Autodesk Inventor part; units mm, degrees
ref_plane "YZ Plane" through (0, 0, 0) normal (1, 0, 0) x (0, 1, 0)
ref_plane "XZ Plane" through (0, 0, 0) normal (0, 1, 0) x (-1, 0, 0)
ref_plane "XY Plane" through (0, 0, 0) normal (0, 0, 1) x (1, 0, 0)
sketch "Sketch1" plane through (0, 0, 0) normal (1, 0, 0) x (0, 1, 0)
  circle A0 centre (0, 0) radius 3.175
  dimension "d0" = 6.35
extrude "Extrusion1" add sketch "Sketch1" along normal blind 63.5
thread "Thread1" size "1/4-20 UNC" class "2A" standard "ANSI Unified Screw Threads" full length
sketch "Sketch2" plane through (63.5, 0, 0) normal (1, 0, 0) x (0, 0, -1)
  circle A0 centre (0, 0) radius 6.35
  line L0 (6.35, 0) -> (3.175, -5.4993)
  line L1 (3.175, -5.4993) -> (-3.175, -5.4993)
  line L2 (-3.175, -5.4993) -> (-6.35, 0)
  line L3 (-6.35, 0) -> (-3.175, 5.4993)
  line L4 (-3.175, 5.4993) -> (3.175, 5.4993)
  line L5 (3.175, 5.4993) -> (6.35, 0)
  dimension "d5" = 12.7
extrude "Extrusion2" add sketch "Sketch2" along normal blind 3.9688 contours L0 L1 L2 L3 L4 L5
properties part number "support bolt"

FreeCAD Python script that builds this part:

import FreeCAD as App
import Part
import Sketcher

V = App.Vector
Q = App.Units.Quantity


def add_polygon(sketch, points):
    """Adds a closed chain of lines whose ends are joined by coincident constraints."""
    first, n = sketch.GeometryCount, len(points)
    for a, b in zip(points, points[1:] + points[:1]):
        sketch.addGeometry(Part.LineSegment(App.Vector(*a, 0), App.Vector(*b, 0)), False)
    for i in range(n):
        sketch.addConstraint(Sketcher.Constraint("Coincident", first + i, 2, first + (i + 1) % n, 1))

doc = App.newDocument("Part")
body = doc.addObject("PartDesign::Body", "Body")

# Sketch on YZ plane
sketch1 = body.newObject("Sketcher::SketchObject", "Sketch")
sketch1.AttachmentSupport = (doc.getObject("YZ_Plane"), [""])
sketch1.MapMode = "FlatFace"
sketch1.addGeometry(Part.Circle(V(0, 0, 0), V(0, 0, 1), 3.2), False)
sketch1.addConstraint([
    Sketcher.Constraint("Coincident", 0, 3, -1, 1),
    Sketcher.Constraint("Diameter", 0, Q("0.25 in")),
])
pad1 = body.newObject("PartDesign::Pad", "Pad")
pad1.Profile = sketch1
pad1.Length = Q("2.5 in")

# Sketch on YZ plane
sketch2 = body.newObject("Sketcher::SketchObject", "Sketch001")
sketch2.AttachmentSupport = (doc.getObject("YZ_Plane"), [""])
sketch2.MapMode = "FlatFace"
sketch2.AttachmentOffset = App.Placement(V(0, 0, 2.5 * 25.4), App.Rotation())
add_polygon(sketch2, [(-5, -3), (0, -6), (5, -3), (5, 3), (0, 6), (-5, 3)])  # lines 0-5
sketch2.addConstraint([
    Sketcher.Constraint("Vertical", 2),
    Sketcher.Constraint("Vertical", 5),
    Sketcher.Constraint("Symmetric", 0, 2, 3, 2, -1, 1),
    Sketcher.Constraint("Symmetric", 1, 2, 4, 2, -1, 1),
    Sketcher.Constraint("PointOnObject", 0, 2, -2),
    Sketcher.Constraint("Parallel", 0, 3),
    Sketcher.Constraint("Horizontal", 2, 2, 4, 2),
    Sketcher.Constraint("DistanceY", 0, 2, 3, 2, Q("0.5 in")),
    Sketcher.Constraint("Angle", 0, Q("-29.9998 deg")),
    Sketcher.Constraint("DistanceY", 2, 1, 2, 2, Q("0.25 in")),
])
pad2 = body.newObject("PartDesign::Pad", "Pad001")
pad2.Profile = sketch2
pad2.Length = Q("0.156252 in")

doc.recompute()
